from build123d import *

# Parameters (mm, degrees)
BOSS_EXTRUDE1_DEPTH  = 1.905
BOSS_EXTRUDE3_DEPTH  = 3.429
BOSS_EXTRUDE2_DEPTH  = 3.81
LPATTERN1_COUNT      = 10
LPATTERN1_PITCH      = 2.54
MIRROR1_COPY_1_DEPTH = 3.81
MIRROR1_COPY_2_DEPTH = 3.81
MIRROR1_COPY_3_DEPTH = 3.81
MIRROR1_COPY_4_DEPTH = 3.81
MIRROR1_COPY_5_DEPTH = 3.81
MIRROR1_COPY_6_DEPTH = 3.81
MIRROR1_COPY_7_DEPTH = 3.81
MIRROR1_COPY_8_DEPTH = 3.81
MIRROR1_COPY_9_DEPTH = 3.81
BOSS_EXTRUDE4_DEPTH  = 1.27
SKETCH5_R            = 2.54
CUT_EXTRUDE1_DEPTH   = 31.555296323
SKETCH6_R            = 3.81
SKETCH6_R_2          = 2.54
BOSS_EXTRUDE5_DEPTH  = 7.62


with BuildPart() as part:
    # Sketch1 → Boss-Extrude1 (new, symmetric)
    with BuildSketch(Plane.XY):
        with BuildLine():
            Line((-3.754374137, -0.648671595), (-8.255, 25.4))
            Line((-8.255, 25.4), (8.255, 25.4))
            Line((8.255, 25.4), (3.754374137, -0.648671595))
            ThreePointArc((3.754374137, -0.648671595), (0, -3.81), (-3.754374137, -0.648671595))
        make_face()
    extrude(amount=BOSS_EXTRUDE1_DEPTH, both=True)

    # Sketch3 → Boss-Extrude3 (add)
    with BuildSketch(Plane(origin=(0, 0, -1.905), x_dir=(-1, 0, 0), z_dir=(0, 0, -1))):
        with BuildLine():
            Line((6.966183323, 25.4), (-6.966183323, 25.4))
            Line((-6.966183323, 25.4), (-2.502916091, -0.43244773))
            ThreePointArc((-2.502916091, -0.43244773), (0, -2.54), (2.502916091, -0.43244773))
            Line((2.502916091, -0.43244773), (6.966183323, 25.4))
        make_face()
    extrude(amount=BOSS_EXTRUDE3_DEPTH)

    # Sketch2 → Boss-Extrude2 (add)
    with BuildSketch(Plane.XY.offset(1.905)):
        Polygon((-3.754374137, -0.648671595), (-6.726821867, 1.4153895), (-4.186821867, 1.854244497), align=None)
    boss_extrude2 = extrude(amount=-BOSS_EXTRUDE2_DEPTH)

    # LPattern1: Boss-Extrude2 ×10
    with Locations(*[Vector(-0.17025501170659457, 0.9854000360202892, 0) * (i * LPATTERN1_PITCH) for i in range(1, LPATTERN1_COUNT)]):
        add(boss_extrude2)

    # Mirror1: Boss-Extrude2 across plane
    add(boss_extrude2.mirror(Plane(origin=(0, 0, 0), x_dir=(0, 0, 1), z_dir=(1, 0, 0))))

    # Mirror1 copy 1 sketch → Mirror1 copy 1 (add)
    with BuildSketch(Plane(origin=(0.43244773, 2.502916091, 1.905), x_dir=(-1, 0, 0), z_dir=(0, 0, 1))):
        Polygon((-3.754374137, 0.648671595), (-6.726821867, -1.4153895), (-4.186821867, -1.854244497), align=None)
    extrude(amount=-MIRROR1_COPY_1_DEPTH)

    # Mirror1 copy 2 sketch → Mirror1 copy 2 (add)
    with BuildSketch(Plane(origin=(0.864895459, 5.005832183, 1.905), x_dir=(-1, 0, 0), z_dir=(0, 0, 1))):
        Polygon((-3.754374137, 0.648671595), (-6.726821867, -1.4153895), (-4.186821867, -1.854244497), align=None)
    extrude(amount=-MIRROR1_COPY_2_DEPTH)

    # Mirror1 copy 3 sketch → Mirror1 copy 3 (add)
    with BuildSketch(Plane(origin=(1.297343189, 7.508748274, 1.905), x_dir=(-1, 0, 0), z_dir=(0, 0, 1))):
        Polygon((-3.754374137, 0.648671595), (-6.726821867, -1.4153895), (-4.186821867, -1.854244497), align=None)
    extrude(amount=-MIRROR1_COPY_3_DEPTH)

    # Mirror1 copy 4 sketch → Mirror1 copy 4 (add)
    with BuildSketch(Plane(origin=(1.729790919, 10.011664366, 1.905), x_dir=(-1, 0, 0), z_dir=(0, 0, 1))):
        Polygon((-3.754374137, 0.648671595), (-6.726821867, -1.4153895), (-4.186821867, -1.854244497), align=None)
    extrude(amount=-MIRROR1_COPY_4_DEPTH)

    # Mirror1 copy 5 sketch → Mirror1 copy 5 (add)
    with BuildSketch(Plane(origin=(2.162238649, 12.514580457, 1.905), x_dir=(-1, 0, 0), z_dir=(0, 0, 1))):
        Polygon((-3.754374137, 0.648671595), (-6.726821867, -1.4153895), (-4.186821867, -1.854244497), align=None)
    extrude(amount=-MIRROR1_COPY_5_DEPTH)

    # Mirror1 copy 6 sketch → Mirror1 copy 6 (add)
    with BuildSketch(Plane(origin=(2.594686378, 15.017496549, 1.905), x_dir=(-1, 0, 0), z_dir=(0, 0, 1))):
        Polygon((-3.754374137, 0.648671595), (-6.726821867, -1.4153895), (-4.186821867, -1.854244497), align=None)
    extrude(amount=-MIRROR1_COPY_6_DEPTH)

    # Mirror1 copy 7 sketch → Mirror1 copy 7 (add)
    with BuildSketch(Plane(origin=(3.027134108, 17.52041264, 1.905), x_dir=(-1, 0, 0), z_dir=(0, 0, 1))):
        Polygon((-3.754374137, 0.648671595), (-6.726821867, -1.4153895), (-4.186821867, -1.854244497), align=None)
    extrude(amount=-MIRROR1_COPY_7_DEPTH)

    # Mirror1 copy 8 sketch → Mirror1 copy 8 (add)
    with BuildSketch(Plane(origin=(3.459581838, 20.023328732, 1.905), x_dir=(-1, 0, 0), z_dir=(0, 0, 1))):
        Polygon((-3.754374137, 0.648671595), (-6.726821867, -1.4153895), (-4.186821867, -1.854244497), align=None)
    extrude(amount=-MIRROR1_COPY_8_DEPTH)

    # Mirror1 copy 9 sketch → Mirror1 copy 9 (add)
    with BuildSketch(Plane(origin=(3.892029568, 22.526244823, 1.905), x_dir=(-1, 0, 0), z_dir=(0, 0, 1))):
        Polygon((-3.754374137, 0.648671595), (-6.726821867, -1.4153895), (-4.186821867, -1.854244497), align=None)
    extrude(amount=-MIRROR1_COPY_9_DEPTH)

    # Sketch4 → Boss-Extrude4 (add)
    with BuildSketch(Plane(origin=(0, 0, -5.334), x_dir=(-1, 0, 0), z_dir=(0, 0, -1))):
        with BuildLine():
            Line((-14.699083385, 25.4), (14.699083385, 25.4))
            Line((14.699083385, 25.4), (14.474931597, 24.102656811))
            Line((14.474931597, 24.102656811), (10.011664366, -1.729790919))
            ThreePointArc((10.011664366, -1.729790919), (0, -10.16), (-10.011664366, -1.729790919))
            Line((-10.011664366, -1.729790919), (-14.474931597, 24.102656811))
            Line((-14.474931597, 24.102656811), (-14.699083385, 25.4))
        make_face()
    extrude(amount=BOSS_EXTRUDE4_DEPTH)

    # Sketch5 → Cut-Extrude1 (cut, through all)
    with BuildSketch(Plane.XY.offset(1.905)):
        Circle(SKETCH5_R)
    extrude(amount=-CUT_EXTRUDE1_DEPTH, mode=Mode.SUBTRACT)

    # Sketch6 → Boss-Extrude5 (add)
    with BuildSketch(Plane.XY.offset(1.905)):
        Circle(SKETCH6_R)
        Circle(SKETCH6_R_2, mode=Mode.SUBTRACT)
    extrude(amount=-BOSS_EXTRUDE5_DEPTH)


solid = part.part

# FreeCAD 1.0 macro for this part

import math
import FreeCAD as App
import Part
import Sketcher
Q = App.Units.Quantity


def add_polygon(sketch, points):
    """Adds a closed chain of lines whose ends are joined by coincident constraints."""
    first, n = sketch.GeometryCount, len(points)
    for a, b in zip(points, points[1:] + points[:1]):
        sketch.addGeometry(Part.LineSegment(App.Vector(*a, 0), App.Vector(*b, 0)), False)
    for i in range(n):
        sketch.addConstraint(Sketcher.Constraint("Coincident", first + i, 2, first + (i + 1) % n, 1))

doc = App.newDocument("Part")
body = doc.addObject("PartDesign::Body", "Body")

# Sketch on XY plane
sketch1 = doc.addObject("Sketcher::SketchObject", "Sketch")
body.addObject(sketch1)
sketch1.AttachmentSupport = (doc.XY_Plane, [""])
sketch1.MapMode = "FlatFace"
sketch1.addGeometry([
    Part.LineSegment(App.Vector(-8.3, 25.4, 0), App.Vector(-3.8, -0.6, 0)),
    Part.ArcOfCircle(Part.Circle(App.Vector(0, 0, 0), App.Vector(0, 0, 1), 3.8), math.radians(-170), math.radians(-10)),
    Part.LineSegment(App.Vector(3.8, -0.6, 0), App.Vector(8.3, 25.4, 0)),
    Part.LineSegment(App.Vector(8.3, 25.4, 0), App.Vector(-8.3, 25.4, 0)),
], False)
sketch1.addConstraint([
    Sketcher.Constraint("Tangent", 0, 2, 1, 1),
    Sketcher.Constraint("Tangent", 1, 2, 2, 1),
    Sketcher.Constraint("Coincident", 2, 2, 3, 1),
    Sketcher.Constraint("Coincident", 3, 2, 0, 1),
    Sketcher.Constraint("Horizontal", 3),
    Sketcher.Constraint("Coincident", 1, 3, -1, 1),
    Sketcher.Constraint("Horizontal", 0, 2, 1, 2),
    Sketcher.Constraint("Radius", 1, Q("0.15 in")),
    Sketcher.Constraint("DistanceY", -1, 1, 2, 2, Q("1 in")),
    Sketcher.Constraint("DistanceX", 3, 2, 3, 1, Q("0.65 in")),
])
pad1 = doc.addObject("PartDesign::Pad", "Pad")
body.addObject(pad1)
pad1.Profile = sketch1
pad1.Length = Q("0.15 in")
pad1.Midplane = True

# Sketch on XY plane
sketch2 = doc.addObject("Sketcher::SketchObject", "Sketch001")
body.addObject(sketch2)
sketch2.AttachmentSupport = (doc.XY_Plane, [""])
sketch2.MapMode = "FlatFace"
sketch2.AttachmentOffset = App.Placement(App.Vector(0, 0, -0.075 * 25.4), App.Rotation())
sketch2.addGeometry([
    Part.LineSegment(App.Vector(-7, 25.4, 0), App.Vector(7, 25.4, 0)),
    Part.LineSegment(App.Vector(7, 25.4, 0), App.Vector(2.5, -0.4, 0)),
    Part.ArcOfCircle(Part.Circle(App.Vector(0, 0, 0), App.Vector(0, 0, 1), 2.5), math.radians(-170), math.radians(-10)),
    Part.LineSegment(App.Vector(-2.5, -0.4, 0), App.Vector(-7, 25.4, 0)),
], False)
sketch2.addConstraint([
    Sketcher.Constraint("Coincident", 0, 2, 1, 1),
    Sketcher.Constraint("Tangent", 1, 2, 2, 2),
    Sketcher.Constraint("Tangent", 2, 1, 3, 1),
    Sketcher.Constraint("Coincident", 3, 2, 0, 1),
    Sketcher.Constraint("Horizontal", 0),
    Sketcher.Constraint("Coincident", 2, 3, -1, 1),
    Sketcher.Constraint("Horizontal", 1, 2, 2, 1),
    Sketcher.Constraint("Radius", 2, Q("0.1 in")),
    Sketcher.Constraint("DistanceY", -1, 1, 0, 2, Q("1 in")),
    Sketcher.Constraint("DistanceX", 2, 1, 0, 2, Q("9.469099 mm")),
])
pad2 = doc.addObject("PartDesign::Pad", "Pad001")
body.addObject(pad2)
pad2.Profile = sketch2
pad2.Length = Q("0.135 in")
pad2.Reversed = True

# Sketch on XY plane
sketch3 = doc.addObject("Sketcher::SketchObject", "Sketch002")
body.addObject(sketch3)
sketch3.AttachmentSupport = (doc.XY_Plane, [""])
sketch3.MapMode = "FlatFace"
sketch3.AttachmentOffset = App.Placement(App.Vector(0, 0, 0.075 * 25.4), App.Rotation())
add_polygon(sketch3, [(-6.7, 1.4), (-3.8, -0.6), (-4.2, 1.9)])  # lines 0-2
sketch3.addConstraint([
    Sketcher.Constraint("Perpendicular", 1, 2),
    Sketcher.Constraint("Distance", 1, Q("0.1 in")),
    Sketcher.Constraint("DistanceX", 2, 2, 1, 2, Q("0.1 in")),
    Sketcher.Constraint("Distance", 0, Q("3.618811 mm")),
    Sketcher.Constraint("DistanceY", 0, 2, -1, 1, Q("0.648672 mm")),
    Sketcher.Constraint("DistanceX", 1, 2, -1, 1, Q("4.186822 mm")),
])
pad3 = doc.addObject("PartDesign::Pad", "Pad002")
body.addObject(pad3)
pad3.Profile = sketch3
pad3.Length = Q("0.15 in")
pad3.Reversed = True
doc.recompute()

datumline = doc.addObject("PartDesign::Line", "DatumLine")
body.addObject(datumline)
datumline.Placement = App.Placement(App.Vector(0, 0, 0), App.Rotation(App.Vector(0, 0, 1), App.Vector(-0.170255012, 0.985400036, 0)))
linearpattern = doc.addObject("PartDesign::LinearPattern", "LinearPattern")
body.addObject(linearpattern)
linearpattern.Originals = [pad3]
linearpattern.Direction = (datumline, [""])
linearpattern.Mode = "offset"
linearpattern.Offset = Q("0.1 in")
linearpattern.Occurrences = 10
body.Tip = linearpattern
doc.recompute()

mirrored = doc.addObject("PartDesign::Mirrored", "Mirrored")
body.addObject(mirrored)
mirrored.Originals = [pad3]
mirrored.MirrorPlane = (doc.YZ_Plane, [""])
body.Tip = mirrored

# Sketch on XY plane
sketch4 = doc.addObject("Sketcher::SketchObject", "Sketch003")
body.addObject(sketch4)
sketch4.AttachmentSupport = (doc.XY_Plane, [""])
sketch4.MapMode = "FlatFace"
sketch4.AttachmentOffset = App.Placement(App.Vector(0, 0, 0.075 * 25.4), App.Rotation())
add_polygon(sketch4, [(4.2, 1.9), (7.2, 3.9), (4.6, 4.4)])  # lines 0-2
sketch4.addConstraint([
    Sketcher.Constraint("Perpendicular", 1, 2),
    Sketcher.Constraint("Distance", 2, Q("0.1 in")),
    Sketcher.Constraint("DistanceX", 1, 2, 0, 2, Q("0.1 in")),
    Sketcher.Constraint("Distance", 0, Q("3.618811 mm")),
    Sketcher.Constraint("DistanceX", -1, 1, 0, 2, Q("7.15927 mm")),
    Sketcher.Constraint("DistanceY", -1, 1, 1, 2, Q("4.357161 mm")),
])
pad4 = doc.addObject("PartDesign::Pad", "Pad003")
body.addObject(pad4)
pad4.Profile = sketch4
pad4.Length = Q("0.15 in")
pad4.Reversed = True

# Sketch on XY plane
sketch5 = doc.addObject("Sketcher::SketchObject", "Sketch004")
body.addObject(sketch5)
sketch5.AttachmentSupport = (doc.XY_Plane, [""])
sketch5.MapMode = "FlatFace"
sketch5.AttachmentOffset = App.Placement(App.Vector(0, 0, 0.075 * 25.4), App.Rotation())
add_polygon(sketch5, [(4.6, 4.4), (7.6, 6.4), (5.1, 6.9)])  # lines 0-2
sketch5.addConstraint([
    Sketcher.Constraint("Perpendicular", 1, 2),
    Sketcher.Constraint("Distance", 2, Q("0.1 in")),
    Sketcher.Constraint("DistanceX", 1, 2, 0, 2, Q("0.1 in")),
    Sketcher.Constraint("Distance", 0, Q("3.618811 mm")),
    Sketcher.Constraint("DistanceY", -1, 1, 0, 2, Q("6.421222 mm")),
    Sketcher.Constraint("DistanceX", -1, 1, 2, 2, Q("4.61927 mm")),
])
pad5 = doc.addObject("PartDesign::Pad", "Pad004")
body.addObject(pad5)
pad5.Profile = sketch5
pad5.Length = Q("0.15 in")
pad5.Reversed = True

# Sketch on XY plane
sketch6 = doc.addObject("Sketcher::SketchObject", "Sketch005")
body.addObject(sketch6)
sketch6.AttachmentSupport = (doc.XY_Plane, [""])
sketch6.MapMode = "FlatFace"
sketch6.AttachmentOffset = App.Placement(App.Vector(0, 0, 0.075 * 25.4), App.Rotation())
add_polygon(sketch6, [(5.1, 6.9), (8, 8.9), (5.5, 9.4)])  # lines 0-2
sketch6.addConstraint([
    Sketcher.Constraint("Perpendicular", 1, 2),
    Sketcher.Constraint("Distance", 2, Q("0.1 in")),
    Sketcher.Constraint("DistanceX", 1, 2, 0, 2, Q("0.1 in")),
    Sketcher.Constraint("Distance", 0, Q("3.618811 mm")),
    Sketcher.Constraint("DistanceX", -1, 1, 0, 2, Q("8.024165 mm")),
    Sketcher.Constraint("DistanceY", -1, 1, 0, 2, Q("8.924138 mm")),
])
pad6 = doc.addObject("PartDesign::Pad", "Pad005")
body.addObject(pad6)
pad6.Profile = sketch6
pad6.Length = Q("0.15 in")
pad6.Reversed = True

# Sketch on XY plane
sketch7 = doc.addObject("Sketcher::SketchObject", "Sketch006")
body.addObject(sketch7)
sketch7.AttachmentSupport = (doc.XY_Plane, [""])
sketch7.MapMode = "FlatFace"
sketch7.AttachmentOffset = App.Placement(App.Vector(0, 0, 0.075 * 25.4), App.Rotation())
add_polygon(sketch7, [(5.5, 9.4), (8.5, 11.4), (5.9, 11.9)])  # lines 0-2
sketch7.addConstraint([
    Sketcher.Constraint("Perpendicular", 1, 2),
    Sketcher.Constraint("Distance", 2, Q("0.1 in")),
    Sketcher.Constraint("DistanceX", 1, 2, 0, 2, Q("0.1 in")),
    Sketcher.Constraint("Distance", 0, Q("3.618811 mm")),
    Sketcher.Constraint("DistanceY", -1, 1, 1, 2, Q("11.865909 mm")),
    Sketcher.Constraint("DistanceX", -1, 1, 0, 2, Q("8.456613 mm")),
])
pad7 = doc.addObject("PartDesign::Pad", "Pad006")
body.addObject(pad7)
pad7.Profile = sketch7
pad7.Length = Q("0.15 in")
pad7.Reversed = True

# Sketch on XY plane
sketch8 = doc.addObject("Sketcher::SketchObject", "Sketch007")
body.addObject(sketch8)
sketch8.AttachmentSupport = (doc.XY_Plane, [""])
sketch8.MapMode = "FlatFace"
sketch8.AttachmentOffset = App.Placement(App.Vector(0, 0, 0.075 * 25.4), App.Rotation())
add_polygon(sketch8, [(5.9, 11.9), (8.9, 13.9), (6.3, 14.4)])  # lines 0-2
sketch8.addConstraint([
    Sketcher.Constraint("Perpendicular", 1, 2),
    Sketcher.Constraint("Distance", 2, Q("0.1 in")),
    Sketcher.Constraint("DistanceX", 1, 2, 0, 2, Q("0.1 in")),
    Sketcher.Constraint("Distance", 0, Q("3.618811 mm")),
    Sketcher.Constraint("DistanceX", -1, 1, 0, 2, Q("8.889061 mm")),
    Sketcher.Constraint("DistanceY", -1, 1, 0, 2, Q("13.92997 mm")),
])
pad8 = doc.addObject("PartDesign::Pad", "Pad007")
body.addObject(pad8)
pad8.Profile = sketch8
pad8.Length = Q("0.15 in")
pad8.Reversed = True

# Sketch on XY plane
sketch9 = doc.addObject("Sketcher::SketchObject", "Sketch008")
body.addObject(sketch9)
sketch9.AttachmentSupport = (doc.XY_Plane, [""])
sketch9.MapMode = "FlatFace"
sketch9.AttachmentOffset = App.Placement(App.Vector(0, 0, 0.075 * 25.4), App.Rotation())
add_polygon(sketch9, [(6.3, 14.4), (9.3, 16.4), (6.8, 16.9)])  # lines 0-2
sketch9.addConstraint([
    Sketcher.Constraint("Perpendicular", 1, 2),
    Sketcher.Constraint("Distance", 2, Q("0.1 in")),
    Sketcher.Constraint("DistanceX", 1, 2, 0, 2, Q("0.1 in")),
    Sketcher.Constraint("Distance", 0, Q("3.618811 mm")),
    Sketcher.Constraint("DistanceX", -1, 1, 0, 2, Q("9.321508 mm")),
    Sketcher.Constraint("DistanceY", -1, 1, 1, 2, Q("16.871741 mm")),
])
pad9 = doc.addObject("PartDesign::Pad", "Pad008")
body.addObject(pad9)
pad9.Profile = sketch9
pad9.Length = Q("0.15 in")
pad9.Reversed = True

# Sketch on XY plane
sketch10 = doc.addObject("Sketcher::SketchObject", "Sketch009")
body.addObject(sketch10)
sketch10.AttachmentSupport = (doc.XY_Plane, [""])
sketch10.MapMode = "FlatFace"
sketch10.AttachmentOffset = App.Placement(App.Vector(0, 0, 0.075 * 25.4), App.Rotation())
add_polygon(sketch10, [(6.8, 16.9), (9.8, 18.9), (7.2, 19.4)])  # lines 0-2
sketch10.addConstraint([
    Sketcher.Constraint("Perpendicular", 1, 2),
    Sketcher.Constraint("Distance", 2, Q("0.1 in")),
    Sketcher.Constraint("DistanceX", 1, 2, 0, 2, Q("0.1 in")),
    Sketcher.Constraint("Distance", 0, Q("3.618811 mm")),
    Sketcher.Constraint("DistanceX", -1, 1, 2, 2, Q("6.781508 mm")),
    Sketcher.Constraint("DistanceY", -1, 1, 2, 2, Q("16.871741 mm")),
])
pad10 = doc.addObject("PartDesign::Pad", "Pad009")
body.addObject(pad10)
pad10.Profile = sketch10
pad10.Length = Q("0.15 in")
pad10.Reversed = True

# Sketch on XY plane
sketch11 = doc.addObject("Sketcher::SketchObject", "Sketch010")
body.addObject(sketch11)
sketch11.AttachmentSupport = (doc.XY_Plane, [""])
sketch11.MapMode = "FlatFace"
sketch11.AttachmentOffset = App.Placement(App.Vector(0, 0, 0.075 * 25.4), App.Rotation())
add_polygon(sketch11, [(7.2, 19.4), (10.2, 21.4), (7.6, 21.9)])  # lines 0-2
sketch11.addConstraint([
    Sketcher.Constraint("Perpendicular", 1, 2),
    Sketcher.Constraint("Distance", 2, Q("0.1 in")),
    Sketcher.Constraint("DistanceX", 1, 2, 0, 2, Q("0.1 in")),
    Sketcher.Constraint("Distance", 0, Q("3.618811 mm")),
    Sketcher.Constraint("DistanceY", -1, 1, 0, 2, Q("21.438718 mm")),
    Sketcher.Constraint("DistanceX", -1, 1, 0, 2, Q("10.186404 mm")),
])
pad11 = doc.addObject("PartDesign::Pad", "Pad010")
body.addObject(pad11)
pad11.Profile = sketch11
pad11.Length = Q("0.15 in")
pad11.Reversed = True

# Sketch on XY plane
sketch12 = doc.addObject("Sketcher::SketchObject", "Sketch011")
body.addObject(sketch12)
sketch12.AttachmentSupport = (doc.XY_Plane, [""])
sketch12.MapMode = "FlatFace"
sketch12.AttachmentOffset = App.Placement(App.Vector(0, 0, 0.075 * 25.4), App.Rotation())
add_polygon(sketch12, [(7.6, 21.9), (10.6, 23.9), (8.1, 24.4)])  # lines 0-2
sketch12.addConstraint([
    Sketcher.Constraint("Perpendicular", 1, 2),
    Sketcher.Constraint("Distance", 2, Q("0.1 in")),
    Sketcher.Constraint("DistanceX", 1, 2, 0, 2, Q("0.1 in")),
    Sketcher.Constraint("Distance", 0, Q("3.618811 mm")),
    Sketcher.Constraint("DistanceX", -1, 1, 0, 2, Q("10.618851 mm")),
    Sketcher.Constraint("DistanceY", -1, 1, 1, 2, Q("24.380489 mm")),
])
pad12 = doc.addObject("PartDesign::Pad", "Pad011")
body.addObject(pad12)
pad12.Profile = sketch12
pad12.Length = Q("0.15 in")
pad12.Reversed = True

# Sketch on XY plane
sketch13 = doc.addObject("Sketcher::SketchObject", "Sketch012")
body.addObject(sketch13)
sketch13.AttachmentSupport = (doc.XY_Plane, [""])
sketch13.MapMode = "FlatFace"
sketch13.AttachmentOffset = App.Placement(App.Vector(0, 0, -0.21 * 25.4), App.Rotation())
sketch13.addGeometry([
    Part.LineSegment(App.Vector(-14.7, 25.4, 0), App.Vector(14.7, 25.4, 0)),  # 0
    Part.LineSegment(App.Vector(14.7, 25.4, 0), App.Vector(14.5, 24.1, 0)),  # 1
    Part.LineSegment(App.Vector(14.5, 24.1, 0), App.Vector(10, -1.7, 0)),  # 2
    Part.ArcOfCircle(Part.Circle(App.Vector(0, 0, 0), App.Vector(0, 0, 1), 10.2), math.radians(-170), math.radians(-10)),  # 3
    Part.LineSegment(App.Vector(-10, -1.7, 0), App.Vector(-14.5, 24.1, 0)),  # 4
    Part.LineSegment(App.Vector(-14.5, 24.1, 0), App.Vector(-14.7, 25.4, 0)),  # 5
], False)
sketch13.addConstraint([
    Sketcher.Constraint("Coincident", 0, 2, 1, 1),
    Sketcher.Constraint("Coincident", 1, 2, 2, 1),
    Sketcher.Constraint("Tangent", 2, 2, 3, 2),
    Sketcher.Constraint("Tangent", 3, 1, 4, 1),
    Sketcher.Constraint("Coincident", 4, 2, 5, 1),
    Sketcher.Constraint("Coincident", 5, 2, 0, 1),
    Sketcher.Constraint("Horizontal", 0),
    Sketcher.Constraint("Coincident", 3, 3, -1, 1),
    Sketcher.Constraint("Symmetric", 1, 2, 4, 2, -2),
    Sketcher.Constraint("Parallel", 1, 2),
    Sketcher.Constraint("Parallel", 4, 5),
    Sketcher.Constraint("Radius", 3, Q("0.4 in")),
    Sketcher.Constraint("DistanceY", -1, 1, 0, 2, Q("1 in")),
    Sketcher.Constraint("Distance", 2, Q("26.215189 mm")),
    Sketcher.Constraint("DistanceX", 0, 1, 0, 2, Q("29.398167 mm")),
])
pad13 = doc.addObject("PartDesign::Pad", "Pad012")
body.addObject(pad13)
pad13.Profile = sketch13
pad13.Length = Q("0.05 in")
pad13.Reversed = True

# Sketch on XY plane
sketch14 = doc.addObject("Sketcher::SketchObject", "Sketch013")
body.addObject(sketch14)
sketch14.AttachmentSupport = (doc.XY_Plane, [""])
sketch14.MapMode = "FlatFace"
sketch14.AttachmentOffset = App.Placement(App.Vector(0, 0, 0.075 * 25.4), App.Rotation())
sketch14.addGeometry(Part.Circle(App.Vector(0, 0, 0), App.Vector(0, 0, 1), 2.5), False)
sketch14.addConstraint([
    Sketcher.Constraint("Coincident", 0, 3, -1, 1),
    Sketcher.Constraint("Diameter", 0, Q("0.2 in")),
])
pocket1 = doc.addObject("PartDesign::Pocket", "Pocket")
body.addObject(pocket1)
pocket1.Profile = sketch14
pocket1.Type = "ThroughAll"

# Sketch on XY plane
sketch15 = doc.addObject("Sketcher::SketchObject", "Sketch014")
body.addObject(sketch15)
sketch15.AttachmentSupport = (doc.XY_Plane, [""])
sketch15.MapMode = "FlatFace"
sketch15.AttachmentOffset = App.Placement(App.Vector(0, 0, 0.075 * 25.4), App.Rotation())
sketch15.addGeometry([
    Part.Circle(App.Vector(0, 0, 0), App.Vector(0, 0, 1), 3.8),
    Part.Circle(App.Vector(0, 0, 0), App.Vector(0, 0, 1), 2.5),
], False)
sketch15.addConstraint([
    Sketcher.Constraint("Coincident", 0, 3, -1, 1),
    Sketcher.Constraint("Coincident", 1, 3, -1, 1),
    Sketcher.Constraint("Diameter", 0, Q("0.3 in")),
    Sketcher.Constraint("Diameter", 1, Q("0.2 in")),
])
pad14 = doc.addObject("PartDesign::Pad", "Pad013")
body.addObject(pad14)
pad14.Profile = sketch15
pad14.Length = Q("0.3 in")
pad14.Reversed = True

doc.recompute()
